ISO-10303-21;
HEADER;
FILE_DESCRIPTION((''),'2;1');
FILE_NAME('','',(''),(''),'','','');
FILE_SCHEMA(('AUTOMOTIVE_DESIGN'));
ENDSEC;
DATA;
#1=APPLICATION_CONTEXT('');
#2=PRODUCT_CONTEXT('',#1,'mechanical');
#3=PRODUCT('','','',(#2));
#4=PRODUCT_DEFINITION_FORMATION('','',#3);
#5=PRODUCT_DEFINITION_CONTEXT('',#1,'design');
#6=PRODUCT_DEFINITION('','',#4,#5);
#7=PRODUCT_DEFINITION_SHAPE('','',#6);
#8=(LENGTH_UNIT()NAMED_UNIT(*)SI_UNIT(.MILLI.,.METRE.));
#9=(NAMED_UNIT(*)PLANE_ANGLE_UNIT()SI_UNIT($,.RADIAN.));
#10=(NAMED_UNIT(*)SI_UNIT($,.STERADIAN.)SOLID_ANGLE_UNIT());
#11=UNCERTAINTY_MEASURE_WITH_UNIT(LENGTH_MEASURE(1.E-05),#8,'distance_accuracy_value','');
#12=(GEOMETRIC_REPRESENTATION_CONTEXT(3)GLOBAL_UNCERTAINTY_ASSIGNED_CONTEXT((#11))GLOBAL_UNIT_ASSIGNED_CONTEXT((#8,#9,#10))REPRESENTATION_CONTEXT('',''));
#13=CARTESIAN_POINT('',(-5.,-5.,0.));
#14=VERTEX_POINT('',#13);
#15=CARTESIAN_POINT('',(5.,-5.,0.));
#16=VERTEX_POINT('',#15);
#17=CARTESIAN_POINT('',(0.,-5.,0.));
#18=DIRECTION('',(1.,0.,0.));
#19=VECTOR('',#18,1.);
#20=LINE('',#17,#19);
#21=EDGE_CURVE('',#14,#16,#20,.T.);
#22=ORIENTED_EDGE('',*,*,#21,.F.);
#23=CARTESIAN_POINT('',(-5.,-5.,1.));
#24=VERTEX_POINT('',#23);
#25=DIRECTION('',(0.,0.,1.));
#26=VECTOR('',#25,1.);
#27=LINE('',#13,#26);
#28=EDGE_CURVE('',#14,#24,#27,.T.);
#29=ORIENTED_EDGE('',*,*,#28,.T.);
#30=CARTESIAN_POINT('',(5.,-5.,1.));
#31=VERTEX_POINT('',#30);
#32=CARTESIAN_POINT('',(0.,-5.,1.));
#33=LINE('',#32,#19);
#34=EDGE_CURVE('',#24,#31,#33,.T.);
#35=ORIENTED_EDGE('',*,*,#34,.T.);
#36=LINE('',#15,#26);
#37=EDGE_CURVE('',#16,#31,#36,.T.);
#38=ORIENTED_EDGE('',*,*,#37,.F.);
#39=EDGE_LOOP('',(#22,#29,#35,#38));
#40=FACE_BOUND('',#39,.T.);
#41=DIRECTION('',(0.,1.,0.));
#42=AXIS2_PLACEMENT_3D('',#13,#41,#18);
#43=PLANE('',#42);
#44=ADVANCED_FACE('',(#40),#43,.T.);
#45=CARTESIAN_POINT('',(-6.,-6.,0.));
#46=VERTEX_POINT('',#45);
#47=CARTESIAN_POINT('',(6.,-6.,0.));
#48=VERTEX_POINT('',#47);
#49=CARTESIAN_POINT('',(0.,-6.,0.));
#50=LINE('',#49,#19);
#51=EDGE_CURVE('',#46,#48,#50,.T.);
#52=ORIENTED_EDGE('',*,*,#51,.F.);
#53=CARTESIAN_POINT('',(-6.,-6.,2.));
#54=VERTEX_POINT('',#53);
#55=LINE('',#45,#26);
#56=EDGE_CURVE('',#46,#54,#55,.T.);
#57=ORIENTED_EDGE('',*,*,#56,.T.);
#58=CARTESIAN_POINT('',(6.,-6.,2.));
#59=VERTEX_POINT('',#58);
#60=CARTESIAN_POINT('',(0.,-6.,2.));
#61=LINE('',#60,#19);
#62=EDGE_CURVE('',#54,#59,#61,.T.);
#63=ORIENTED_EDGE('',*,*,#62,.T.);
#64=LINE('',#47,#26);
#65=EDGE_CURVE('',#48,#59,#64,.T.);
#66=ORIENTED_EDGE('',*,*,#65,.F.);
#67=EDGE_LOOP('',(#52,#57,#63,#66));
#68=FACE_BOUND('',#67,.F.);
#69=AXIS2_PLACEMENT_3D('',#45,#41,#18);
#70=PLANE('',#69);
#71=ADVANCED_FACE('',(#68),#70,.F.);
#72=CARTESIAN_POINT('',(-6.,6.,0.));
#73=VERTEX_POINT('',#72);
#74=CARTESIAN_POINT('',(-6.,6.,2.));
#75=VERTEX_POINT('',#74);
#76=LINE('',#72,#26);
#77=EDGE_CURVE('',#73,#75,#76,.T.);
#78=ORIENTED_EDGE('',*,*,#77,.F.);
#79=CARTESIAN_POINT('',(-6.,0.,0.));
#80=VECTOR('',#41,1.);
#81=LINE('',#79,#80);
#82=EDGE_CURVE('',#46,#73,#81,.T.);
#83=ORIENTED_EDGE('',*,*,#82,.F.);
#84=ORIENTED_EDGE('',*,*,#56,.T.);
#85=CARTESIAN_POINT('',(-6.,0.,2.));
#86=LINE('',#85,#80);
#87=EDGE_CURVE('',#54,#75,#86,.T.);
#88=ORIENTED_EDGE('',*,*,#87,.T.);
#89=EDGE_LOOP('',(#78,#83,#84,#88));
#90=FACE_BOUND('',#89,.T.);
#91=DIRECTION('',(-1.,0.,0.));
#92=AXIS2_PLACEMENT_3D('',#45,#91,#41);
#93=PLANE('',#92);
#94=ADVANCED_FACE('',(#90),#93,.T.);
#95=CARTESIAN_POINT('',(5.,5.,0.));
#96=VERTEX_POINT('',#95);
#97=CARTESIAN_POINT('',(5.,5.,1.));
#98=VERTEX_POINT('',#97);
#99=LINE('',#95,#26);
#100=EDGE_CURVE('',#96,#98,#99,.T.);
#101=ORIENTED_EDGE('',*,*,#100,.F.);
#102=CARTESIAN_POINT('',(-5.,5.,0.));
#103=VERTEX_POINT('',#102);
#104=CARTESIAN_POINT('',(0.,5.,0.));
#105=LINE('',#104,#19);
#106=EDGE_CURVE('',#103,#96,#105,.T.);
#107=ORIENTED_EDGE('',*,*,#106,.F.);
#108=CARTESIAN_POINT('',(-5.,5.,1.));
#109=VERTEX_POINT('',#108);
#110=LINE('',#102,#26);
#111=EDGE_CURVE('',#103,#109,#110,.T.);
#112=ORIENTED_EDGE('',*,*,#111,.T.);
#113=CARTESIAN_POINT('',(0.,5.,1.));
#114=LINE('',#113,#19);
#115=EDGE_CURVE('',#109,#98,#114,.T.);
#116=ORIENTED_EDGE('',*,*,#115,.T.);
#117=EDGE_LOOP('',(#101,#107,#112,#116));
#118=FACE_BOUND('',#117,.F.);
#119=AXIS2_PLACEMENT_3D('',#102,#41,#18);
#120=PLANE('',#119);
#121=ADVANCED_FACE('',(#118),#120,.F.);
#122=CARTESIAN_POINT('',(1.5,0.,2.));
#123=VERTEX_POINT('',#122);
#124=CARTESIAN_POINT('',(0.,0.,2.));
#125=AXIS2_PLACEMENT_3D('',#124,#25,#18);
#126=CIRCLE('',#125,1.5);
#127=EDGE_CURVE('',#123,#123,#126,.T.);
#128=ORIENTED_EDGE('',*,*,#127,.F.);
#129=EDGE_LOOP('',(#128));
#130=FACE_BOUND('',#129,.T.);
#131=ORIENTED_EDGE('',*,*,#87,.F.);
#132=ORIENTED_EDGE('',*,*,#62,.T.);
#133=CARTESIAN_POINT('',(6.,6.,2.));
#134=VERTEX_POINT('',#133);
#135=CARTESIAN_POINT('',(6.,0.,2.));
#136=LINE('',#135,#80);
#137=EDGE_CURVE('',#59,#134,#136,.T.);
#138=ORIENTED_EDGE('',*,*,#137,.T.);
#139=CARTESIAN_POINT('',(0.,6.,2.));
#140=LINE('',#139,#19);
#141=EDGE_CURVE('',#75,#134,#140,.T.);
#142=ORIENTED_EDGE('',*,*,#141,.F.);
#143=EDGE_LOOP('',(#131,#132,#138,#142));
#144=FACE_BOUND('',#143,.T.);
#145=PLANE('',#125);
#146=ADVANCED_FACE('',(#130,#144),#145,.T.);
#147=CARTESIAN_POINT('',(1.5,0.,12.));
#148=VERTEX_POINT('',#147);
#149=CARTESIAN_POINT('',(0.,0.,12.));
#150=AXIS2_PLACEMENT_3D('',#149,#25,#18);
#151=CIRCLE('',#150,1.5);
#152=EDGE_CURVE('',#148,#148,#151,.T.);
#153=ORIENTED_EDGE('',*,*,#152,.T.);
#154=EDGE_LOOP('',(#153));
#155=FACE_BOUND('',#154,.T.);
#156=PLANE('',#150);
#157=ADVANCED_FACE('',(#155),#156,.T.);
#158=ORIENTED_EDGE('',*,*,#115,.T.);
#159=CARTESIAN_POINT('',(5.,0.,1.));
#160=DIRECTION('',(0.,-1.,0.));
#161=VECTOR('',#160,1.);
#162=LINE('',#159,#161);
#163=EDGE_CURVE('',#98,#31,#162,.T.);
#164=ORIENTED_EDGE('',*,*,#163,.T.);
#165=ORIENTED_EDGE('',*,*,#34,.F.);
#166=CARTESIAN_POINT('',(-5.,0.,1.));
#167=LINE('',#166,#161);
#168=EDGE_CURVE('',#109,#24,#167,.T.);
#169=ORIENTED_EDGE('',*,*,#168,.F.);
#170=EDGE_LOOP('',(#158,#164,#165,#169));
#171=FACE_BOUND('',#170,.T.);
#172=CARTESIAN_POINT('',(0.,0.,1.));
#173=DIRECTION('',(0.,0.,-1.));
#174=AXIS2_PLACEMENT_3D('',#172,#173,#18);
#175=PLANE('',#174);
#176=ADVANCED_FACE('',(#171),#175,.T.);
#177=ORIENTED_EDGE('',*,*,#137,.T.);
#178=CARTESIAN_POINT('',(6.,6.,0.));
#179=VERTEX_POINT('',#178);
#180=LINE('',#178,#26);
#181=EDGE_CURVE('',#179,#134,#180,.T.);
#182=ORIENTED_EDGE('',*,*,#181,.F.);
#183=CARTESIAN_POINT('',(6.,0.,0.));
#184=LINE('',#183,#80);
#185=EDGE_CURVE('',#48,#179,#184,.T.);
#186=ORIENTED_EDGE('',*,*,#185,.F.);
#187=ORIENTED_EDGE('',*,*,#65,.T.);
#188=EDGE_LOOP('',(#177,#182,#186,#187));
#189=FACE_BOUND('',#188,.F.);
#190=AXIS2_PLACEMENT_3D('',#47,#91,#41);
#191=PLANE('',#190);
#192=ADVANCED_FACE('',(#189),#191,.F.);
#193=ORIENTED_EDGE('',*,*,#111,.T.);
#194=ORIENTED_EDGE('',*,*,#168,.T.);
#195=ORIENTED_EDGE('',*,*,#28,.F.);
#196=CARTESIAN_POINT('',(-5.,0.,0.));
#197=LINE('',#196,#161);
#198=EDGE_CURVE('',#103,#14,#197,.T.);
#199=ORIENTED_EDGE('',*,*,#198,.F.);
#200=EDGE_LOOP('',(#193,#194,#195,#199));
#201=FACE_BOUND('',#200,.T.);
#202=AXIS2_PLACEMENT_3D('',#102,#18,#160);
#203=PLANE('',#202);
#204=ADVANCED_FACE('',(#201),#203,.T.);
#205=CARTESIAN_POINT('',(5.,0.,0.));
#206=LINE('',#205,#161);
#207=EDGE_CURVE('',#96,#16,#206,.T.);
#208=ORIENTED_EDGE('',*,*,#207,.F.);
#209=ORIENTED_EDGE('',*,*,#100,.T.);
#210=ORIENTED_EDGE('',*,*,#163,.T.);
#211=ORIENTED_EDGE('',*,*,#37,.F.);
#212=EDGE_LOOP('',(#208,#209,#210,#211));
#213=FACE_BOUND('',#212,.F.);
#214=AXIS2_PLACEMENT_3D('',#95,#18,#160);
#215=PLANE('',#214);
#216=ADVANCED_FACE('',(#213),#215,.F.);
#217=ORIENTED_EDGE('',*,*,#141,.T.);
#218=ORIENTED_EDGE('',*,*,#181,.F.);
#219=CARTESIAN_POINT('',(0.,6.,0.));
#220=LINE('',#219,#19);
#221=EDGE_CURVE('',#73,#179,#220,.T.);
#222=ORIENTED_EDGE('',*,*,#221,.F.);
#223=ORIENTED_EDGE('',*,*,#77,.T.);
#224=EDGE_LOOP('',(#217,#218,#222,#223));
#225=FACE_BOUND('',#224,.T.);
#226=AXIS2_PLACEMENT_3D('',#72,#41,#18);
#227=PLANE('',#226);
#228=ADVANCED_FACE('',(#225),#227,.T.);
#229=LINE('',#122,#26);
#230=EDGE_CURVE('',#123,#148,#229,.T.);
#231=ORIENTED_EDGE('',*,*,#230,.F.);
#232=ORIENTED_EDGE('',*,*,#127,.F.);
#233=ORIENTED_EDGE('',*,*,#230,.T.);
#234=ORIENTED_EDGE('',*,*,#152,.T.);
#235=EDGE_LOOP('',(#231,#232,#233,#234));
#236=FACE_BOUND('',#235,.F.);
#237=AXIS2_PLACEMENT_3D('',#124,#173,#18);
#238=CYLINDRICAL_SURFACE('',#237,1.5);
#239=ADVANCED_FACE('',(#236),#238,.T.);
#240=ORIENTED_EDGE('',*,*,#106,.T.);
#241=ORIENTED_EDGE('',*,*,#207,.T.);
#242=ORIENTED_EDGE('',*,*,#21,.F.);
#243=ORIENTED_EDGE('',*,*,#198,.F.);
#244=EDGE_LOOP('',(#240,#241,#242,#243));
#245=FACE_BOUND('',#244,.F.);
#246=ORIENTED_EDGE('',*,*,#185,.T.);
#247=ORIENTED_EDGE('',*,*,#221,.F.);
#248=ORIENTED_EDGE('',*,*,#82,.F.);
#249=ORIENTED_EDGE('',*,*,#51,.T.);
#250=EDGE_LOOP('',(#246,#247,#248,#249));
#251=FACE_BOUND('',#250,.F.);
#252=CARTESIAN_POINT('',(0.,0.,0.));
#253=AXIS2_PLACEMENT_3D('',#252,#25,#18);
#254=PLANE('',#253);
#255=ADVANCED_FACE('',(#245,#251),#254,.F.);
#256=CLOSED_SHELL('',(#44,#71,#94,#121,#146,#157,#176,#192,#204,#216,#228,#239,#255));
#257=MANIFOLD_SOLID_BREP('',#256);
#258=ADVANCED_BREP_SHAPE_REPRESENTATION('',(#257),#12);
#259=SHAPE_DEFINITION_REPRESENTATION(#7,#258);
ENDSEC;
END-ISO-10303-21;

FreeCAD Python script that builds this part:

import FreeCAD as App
import Part
import Sketcher
Q = App.Units.Quantity

doc = App.newDocument("Part")
params = doc.addObject("Spreadsheet::Sheet", "Params")
for row, (alias, value) in enumerate([
    ("sketch1_width", "12 mm"),
    ("pad1_length", "2 mm"),
    ("sketch2_diameter", "3 mm"),
    ("pad2_length", "10 mm"),
    ("sketch3_width", "10 mm"),
    ("pocket1_length", "1 mm"),
], start=1):
    params.set(f"A{row}", alias)
    params.set(f"B{row}", "=" + value)
    params.setAlias(f"B{row}", alias)

body = doc.addObject("PartDesign::Body", "Body")

# Sketch on XY plane
sketch1 = body.newObject("Sketcher::SketchObject", "Sketch")
sketch1.AttachmentSupport = (doc.getObject("XY_Plane"), [""])
sketch1.MapMode = "FlatFace"
sketch1.addGeometry([
    Part.LineSegment(App.Vector(-6, 6, 0), App.Vector(-6, -6, 0)),
    Part.LineSegment(App.Vector(-6, -6, 0), App.Vector(6, -6, 0)),
    Part.LineSegment(App.Vector(6, -6, 0), App.Vector(6, 6, 0)),
    Part.LineSegment(App.Vector(6, 6, 0), App.Vector(-6, 6, 0)),
], False)
sketch1.addConstraint([
    Sketcher.Constraint("Coincident", 0, 2, 1, 1),
    Sketcher.Constraint("Coincident", 1, 2, 2, 1),
    Sketcher.Constraint("Coincident", 2, 2, 3, 1),
    Sketcher.Constraint("Coincident", 3, 2, 0, 1),
    Sketcher.Constraint("Vertical", 0),
    Sketcher.Constraint("Horizontal", 1),
    Sketcher.Constraint("Vertical", 2),
    Sketcher.Constraint("Horizontal", 3),
    Sketcher.Constraint("Symmetric", 0, 2, 2, 2, -1, 1),
    Sketcher.Constraint("Equal", 3, 0),
    Sketcher.Constraint("DistanceX", 1, 1, 1, 2, Q("12 mm")),
])
sketch1.setExpression("Constraints[10]", "Params.sketch1_width")
pad1 = body.newObject("PartDesign::Pad", "Pad")
pad1.Profile = sketch1
pad1.setExpression("Length", "Params.pad1_length")

# Sketch on XY plane
sketch2 = body.newObject("Sketcher::SketchObject", "Sketch001")
sketch2.AttachmentSupport = (doc.getObject("XY_Plane"), [""])
sketch2.MapMode = "FlatFace"
sketch2.AttachmentOffset = App.Placement(App.Vector(0, 0, 2), App.Rotation())
sketch2.addGeometry(Part.Circle(App.Vector(0, 0, 0), App.Vector(0, 0, 1), 1.5), False)
sketch2.addConstraint([
    Sketcher.Constraint("Coincident", 0, 3, -1, 1),
    Sketcher.Constraint("Diameter", 0, Q("3 mm")),
])
sketch2.setExpression("Constraints[1]", "Params.sketch2_diameter")
pad2 = body.newObject("PartDesign::Pad", "Pad001")
pad2.Profile = sketch2
pad2.setExpression("Length", "Params.pad2_length")

# Sketch on XY plane
sketch3 = body.newObject("Sketcher::SketchObject", "Sketch002")
sketch3.AttachmentSupport = (doc.getObject("XY_Plane"), [""])
sketch3.MapMode = "FlatFace"
sketch3.addGeometry([
    Part.LineSegment(App.Vector(-5, -5, 0), App.Vector(-5, 5, 0)),
    Part.LineSegment(App.Vector(-5, 5, 0), App.Vector(5, 5, 0)),
    Part.LineSegment(App.Vector(5, 5, 0), App.Vector(5, -5, 0)),
    Part.LineSegment(App.Vector(5, -5, 0), App.Vector(-5, -5, 0)),
], False)
sketch3.addConstraint([
    Sketcher.Constraint("Coincident", 0, 2, 1, 1),
    Sketcher.Constraint("Coincident", 1, 2, 2, 1),
    Sketcher.Constraint("Coincident", 2, 2, 3, 1),
    Sketcher.Constraint("Coincident", 3, 2, 0, 1),
    Sketcher.Constraint("Vertical", 0),
    Sketcher.Constraint("Horizontal", 1),
    Sketcher.Constraint("Vertical", 2),
    Sketcher.Constraint("Horizontal", 3),
    Sketcher.Constraint("Symmetric", 0, 2, 2, 2, -1, 1),
    Sketcher.Constraint("Equal", 3, 0),
    Sketcher.Constraint("DistanceX", 1, 1, 1, 2, Q("10 mm")),
])
sketch3.setExpression("Constraints[10]", "Params.sketch3_width")
pocket1 = body.newObject("PartDesign::Pocket", "Pocket")
pocket1.Profile = sketch3
pocket1.setExpression("Length", "Params.pocket1_length")
pocket1.Reversed = True

doc.recompute()
